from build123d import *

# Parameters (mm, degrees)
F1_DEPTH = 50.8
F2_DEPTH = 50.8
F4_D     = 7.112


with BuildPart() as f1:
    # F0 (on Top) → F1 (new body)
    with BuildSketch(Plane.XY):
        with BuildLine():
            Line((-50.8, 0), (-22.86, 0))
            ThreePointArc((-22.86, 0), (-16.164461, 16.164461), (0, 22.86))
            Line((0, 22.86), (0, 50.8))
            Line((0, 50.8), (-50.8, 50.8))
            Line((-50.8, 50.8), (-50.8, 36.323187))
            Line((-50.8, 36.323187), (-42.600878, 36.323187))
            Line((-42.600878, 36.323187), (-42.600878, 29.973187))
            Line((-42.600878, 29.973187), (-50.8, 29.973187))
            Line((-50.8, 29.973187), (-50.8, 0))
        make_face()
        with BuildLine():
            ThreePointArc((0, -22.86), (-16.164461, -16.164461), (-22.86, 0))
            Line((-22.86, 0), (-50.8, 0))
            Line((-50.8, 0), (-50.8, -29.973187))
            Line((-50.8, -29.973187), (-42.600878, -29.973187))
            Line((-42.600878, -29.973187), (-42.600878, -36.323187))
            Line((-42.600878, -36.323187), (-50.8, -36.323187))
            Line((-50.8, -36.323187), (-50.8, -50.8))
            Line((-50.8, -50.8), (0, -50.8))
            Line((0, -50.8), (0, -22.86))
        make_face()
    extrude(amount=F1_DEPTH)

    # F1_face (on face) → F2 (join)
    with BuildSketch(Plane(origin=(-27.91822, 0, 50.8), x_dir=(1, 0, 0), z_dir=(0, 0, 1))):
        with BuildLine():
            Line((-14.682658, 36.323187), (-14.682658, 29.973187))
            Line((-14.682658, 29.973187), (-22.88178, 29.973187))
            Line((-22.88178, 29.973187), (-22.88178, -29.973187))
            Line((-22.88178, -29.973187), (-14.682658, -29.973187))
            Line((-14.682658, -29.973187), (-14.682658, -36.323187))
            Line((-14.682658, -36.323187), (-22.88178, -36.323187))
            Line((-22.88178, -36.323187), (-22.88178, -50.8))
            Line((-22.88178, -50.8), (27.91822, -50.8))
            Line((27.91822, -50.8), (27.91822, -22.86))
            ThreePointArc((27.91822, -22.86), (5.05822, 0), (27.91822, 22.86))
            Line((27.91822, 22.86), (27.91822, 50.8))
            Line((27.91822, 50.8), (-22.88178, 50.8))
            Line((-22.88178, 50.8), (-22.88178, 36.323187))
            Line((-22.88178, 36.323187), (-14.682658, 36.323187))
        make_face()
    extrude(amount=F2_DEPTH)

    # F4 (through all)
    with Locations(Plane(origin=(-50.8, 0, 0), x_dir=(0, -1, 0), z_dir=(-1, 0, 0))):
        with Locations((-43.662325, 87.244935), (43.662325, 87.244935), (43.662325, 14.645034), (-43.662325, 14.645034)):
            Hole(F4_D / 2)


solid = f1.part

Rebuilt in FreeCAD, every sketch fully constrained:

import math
import FreeCAD as App
import Part
import Sketcher

V = App.Vector
Q = App.Units.Quantity

doc = App.newDocument("Part")
body = doc.addObject("PartDesign::Body", "Body")

# Sketch on XY plane
sketch1 = body.newObject("Sketcher::SketchObject", "Sketch")
sketch1.AttachmentSupport = (doc.getObject("XY_Plane"), [""])
sketch1.MapMode = "FlatFace"
sketch1.addGeometry([
    Part.ArcOfCircle(Part.Circle(V(0, 0, 0), V(0, 0, 1), 23), math.radians(90), math.radians(180)),  # 0
    Part.LineSegment(V(0, 23, 0), V(0, 51, 0)),  # 1
    Part.LineSegment(V(0, 51, 0), V(-51, 51, 0)),  # 2
    Part.LineSegment(V(-51, 51, 0), V(-51, 36, 0)),  # 3
    Part.LineSegment(V(-51, 36, 0), V(-43, 36, 0)),  # 4
    Part.LineSegment(V(-43, 36, 0), V(-43, 30, 0)),  # 5
    Part.LineSegment(V(-43, 30, 0), V(-51, 30, 0)),  # 6
    Part.LineSegment(V(-51, 30, 0), V(-51, -30, 0)),  # 7
    Part.LineSegment(V(-51, -30, 0), V(-43, -30, 0)),  # 8
    Part.LineSegment(V(-43, -30, 0), V(-43, -36, 0)),  # 9
    Part.LineSegment(V(-43, -36, 0), V(-51, -36, 0)),  # 10
    Part.LineSegment(V(-51, -36, 0), V(-51, -51, 0)),  # 11
    Part.LineSegment(V(-51, -51, 0), V(0, -51, 0)),  # 12
    Part.LineSegment(V(0, -51, 0), V(0, -23, 0)),  # 13
    Part.ArcOfCircle(Part.Circle(V(0, 0, 0), V(0, 0, 1), 23), math.radians(-180), math.radians(-90)),  # 14
], False)
sketch1.addConstraint([
    Sketcher.Constraint("Coincident", 0, 1, 1, 1),
    Sketcher.Constraint("Coincident", 1, 2, 2, 1),
    Sketcher.Constraint("Coincident", 2, 2, 3, 1),
    Sketcher.Constraint("Coincident", 3, 2, 4, 1),
    Sketcher.Constraint("Coincident", 4, 2, 5, 1),
    Sketcher.Constraint("Coincident", 5, 2, 6, 1),
    Sketcher.Constraint("Coincident", 6, 2, 7, 1),
    Sketcher.Constraint("Coincident", 7, 2, 8, 1),
    Sketcher.Constraint("Coincident", 8, 2, 9, 1),
    Sketcher.Constraint("Coincident", 9, 2, 10, 1),
    Sketcher.Constraint("Coincident", 10, 2, 11, 1),
    Sketcher.Constraint("Coincident", 11, 2, 12, 1),
    Sketcher.Constraint("Coincident", 12, 2, 13, 1),
    Sketcher.Constraint("Coincident", 13, 2, 14, 2),
    Sketcher.Constraint("Tangent", 14, 1, 0, 2),
    Sketcher.Constraint("Vertical", 1),
    Sketcher.Constraint("Horizontal", 2),
    Sketcher.Constraint("Vertical", 3),
    Sketcher.Constraint("Horizontal", 4),
    Sketcher.Constraint("Vertical", 5),
    Sketcher.Constraint("Horizontal", 6),
    Sketcher.Constraint("Vertical", 7),
    Sketcher.Constraint("Horizontal", 8),
    Sketcher.Constraint("Vertical", 9),
    Sketcher.Constraint("Horizontal", 10),
    Sketcher.Constraint("Vertical", 11),
    Sketcher.Constraint("Horizontal", 12),
    Sketcher.Constraint("Vertical", 13),
    Sketcher.Constraint("Coincident", 0, 3, -1, 1),
    Sketcher.Constraint("Equal", 0, 14),
    Sketcher.Constraint("Symmetric", 1, 2, 12, 2, -1, 1),
    Sketcher.Constraint("Symmetric", 5, 2, 8, 2, -1),
    Sketcher.Constraint("Symmetric", 3, 2, 10, 2, -1),
    Sketcher.Constraint("PointOnObject", 0, 1, -2),
    Sketcher.Constraint("PointOnObject", 14, 1, -1),
    Sketcher.Constraint("Vertical", 3, 2, 6, 2),
    Sketcher.Constraint("Radius", 0, Q("0.9 in")),
    Sketcher.Constraint("DistanceX", 2, 2, 2, 1, Q("2 in")),
    Sketcher.Constraint("DistanceY", 1, 1, 1, 2, Q("1.1 in")),
    Sketcher.Constraint("DistanceY", 5, 2, 5, 1, Q("0.25 in")),
    Sketcher.Constraint("DistanceX", 4, 1, 4, 2, Q("0.3228001 in")),
    Sketcher.Constraint("DistanceY", 3, 2, 3, 1, 14.476813),
])
pad1 = body.newObject("PartDesign::Pad", "Pad")
pad1.Profile = sketch1
pad1.Length = Q("2 in")

# Sketch on XY plane
sketch2 = body.newObject("Sketcher::SketchObject", "Sketch001")
sketch2.AttachmentSupport = (doc.getObject("XY_Plane"), [""])
sketch2.MapMode = "FlatFace"
sketch2.AttachmentOffset = App.Placement(V(0, 0, 2 * 25.4), App.Rotation())
sketch2.addGeometry([
    Part.LineSegment(V(-43, 36, 0), V(-43, 30, 0)),  # 0
    Part.LineSegment(V(-43, 30, 0), V(-51, 30, 0)),  # 1
    Part.LineSegment(V(-51, 30, 0), V(-51, -30, 0)),  # 2
    Part.LineSegment(V(-51, -30, 0), V(-43, -30, 0)),  # 3
    Part.LineSegment(V(-43, -30, 0), V(-43, -36, 0)),  # 4
    Part.LineSegment(V(-43, -36, 0), V(-51, -36, 0)),  # 5
    Part.LineSegment(V(-51, -36, 0), V(-51, -51, 0)),  # 6
    Part.LineSegment(V(-51, -51, 0), V(0, -51, 0)),  # 7
    Part.LineSegment(V(0, -51, 0), V(0, -23, 0)),  # 8
    Part.ArcOfCircle(Part.Circle(V(0, 0, 0), V(0, 0, 1), 23), math.radians(90), math.radians(270)),  # 9
    Part.LineSegment(V(0, 23, 0), V(0, 51, 0)),  # 10
    Part.LineSegment(V(0, 51, 0), V(-51, 51, 0)),  # 11
    Part.LineSegment(V(-51, 51, 0), V(-51, 36, 0)),  # 12
    Part.LineSegment(V(-51, 36, 0), V(-43, 36, 0)),  # 13
], False)
sketch2.addConstraint([
    Sketcher.Constraint("Coincident", 0, 2, 1, 1),
    Sketcher.Constraint("Coincident", 1, 2, 2, 1),
    Sketcher.Constraint("Coincident", 2, 2, 3, 1),
    Sketcher.Constraint("Coincident", 3, 2, 4, 1),
    Sketcher.Constraint("Coincident", 4, 2, 5, 1),
    Sketcher.Constraint("Coincident", 5, 2, 6, 1),
    Sketcher.Constraint("Coincident", 6, 2, 7, 1),
    Sketcher.Constraint("Coincident", 7, 2, 8, 1),
    Sketcher.Constraint("Coincident", 8, 2, 9, 2),
    Sketcher.Constraint("Coincident", 9, 1, 10, 1),
    Sketcher.Constraint("Coincident", 10, 2, 11, 1),
    Sketcher.Constraint("Coincident", 11, 2, 12, 1),
    Sketcher.Constraint("Coincident", 12, 2, 13, 1),
    Sketcher.Constraint("Coincident", 13, 2, 0, 1),
    Sketcher.Constraint("Vertical", 0),
    Sketcher.Constraint("Horizontal", 1),
    Sketcher.Constraint("Vertical", 2),
    Sketcher.Constraint("Horizontal", 3),
    Sketcher.Constraint("Vertical", 4),
    Sketcher.Constraint("Horizontal", 5),
    Sketcher.Constraint("Vertical", 6),
    Sketcher.Constraint("Horizontal", 7),
    Sketcher.Constraint("Vertical", 8),
    Sketcher.Constraint("Vertical", 10),
    Sketcher.Constraint("Horizontal", 11),
    Sketcher.Constraint("Vertical", 12),
    Sketcher.Constraint("Horizontal", 13),
    Sketcher.Constraint("Coincident", 9, 3, -1, 1),
    Sketcher.Constraint("Symmetric", 7, 2, 10, 2, -1, 1),
    Sketcher.Constraint("Symmetric", 0, 2, 3, 2, -1),
    Sketcher.Constraint("Symmetric", 5, 2, 12, 2, -1),
    Sketcher.Constraint("PointOnObject", 7, 2, -2),
    Sketcher.Constraint("Vertical", 2, 2, 5, 2),
    Sketcher.Constraint("Radius", 9, Q("0.9 in")),
    Sketcher.Constraint("DistanceX", 7, 1, 7, 2, Q("2 in")),
    Sketcher.Constraint("DistanceY", 8, 1, 8, 2, Q("1.1 in")),
    Sketcher.Constraint("DistanceY", 0, 2, 0, 1, Q("0.25 in")),
    Sketcher.Constraint("DistanceX", 1, 2, 1, 1, Q("0.3228001 in")),
    Sketcher.Constraint("DistanceY", 2, 2, 2, 1, 59.946374),
])
pad2 = body.newObject("PartDesign::Pad", "Pad001")
pad2.Profile = sketch2
pad2.Length = Q("2 in")

# Sketch on YZ plane
sketch3 = body.newObject("Sketcher::SketchObject", "Sketch002")
sketch3.AttachmentSupport = (doc.getObject("YZ_Plane"), [""])
sketch3.MapMode = "FlatFace"
sketch3.AttachmentOffset = App.Placement(V(0, 0, -2 * 25.4), App.Rotation())
sketch3.addGeometry([
    Part.Circle(V(43.7, 87.2, 0), V(0, 0, 1), 3.6),
    Part.Circle(V(-43.7, 87.2, 0), V(0, 0, 1), 3.6),
    Part.Circle(V(-43.7, 14.6, 0), V(0, 0, 1), 3.6),
    Part.Circle(V(43.7, 14.6, 0), V(0, 0, 1), 3.6),
], False)
sketch3.addConstraint([
    Sketcher.Constraint("Equal", 0, 1),
    Sketcher.Constraint("Equal", 1, 2),
    Sketcher.Constraint("Equal", 2, 3),
    Sketcher.Constraint("Symmetric", 0, 3, 1, 3, -2),
    Sketcher.Constraint("Symmetric", 2, 3, 3, 3, -2),
    Sketcher.Constraint("Vertical", 1, 3, 2, 3),
    Sketcher.Constraint("Diameter", 0, Q("0.28 in")),
    Sketcher.Constraint("DistanceY", 2, 3, 1, 3, 72.599901),
    Sketcher.Constraint("DistanceX", 1, 3, 0, 3, 87.32465),
    Sketcher.Constraint("DistanceY", -1, 1, 0, 3, 87.244935),
])
doc.recompute()
hole = body.newObject("PartDesign::Hole", "Hole")
hole.Profile = sketch3
hole.ThreadType = "None"
hole.Diameter = Q("0.28 in")
hole.DepthType = "ThroughAll"
hole.Reversed = True

doc.recompute()
